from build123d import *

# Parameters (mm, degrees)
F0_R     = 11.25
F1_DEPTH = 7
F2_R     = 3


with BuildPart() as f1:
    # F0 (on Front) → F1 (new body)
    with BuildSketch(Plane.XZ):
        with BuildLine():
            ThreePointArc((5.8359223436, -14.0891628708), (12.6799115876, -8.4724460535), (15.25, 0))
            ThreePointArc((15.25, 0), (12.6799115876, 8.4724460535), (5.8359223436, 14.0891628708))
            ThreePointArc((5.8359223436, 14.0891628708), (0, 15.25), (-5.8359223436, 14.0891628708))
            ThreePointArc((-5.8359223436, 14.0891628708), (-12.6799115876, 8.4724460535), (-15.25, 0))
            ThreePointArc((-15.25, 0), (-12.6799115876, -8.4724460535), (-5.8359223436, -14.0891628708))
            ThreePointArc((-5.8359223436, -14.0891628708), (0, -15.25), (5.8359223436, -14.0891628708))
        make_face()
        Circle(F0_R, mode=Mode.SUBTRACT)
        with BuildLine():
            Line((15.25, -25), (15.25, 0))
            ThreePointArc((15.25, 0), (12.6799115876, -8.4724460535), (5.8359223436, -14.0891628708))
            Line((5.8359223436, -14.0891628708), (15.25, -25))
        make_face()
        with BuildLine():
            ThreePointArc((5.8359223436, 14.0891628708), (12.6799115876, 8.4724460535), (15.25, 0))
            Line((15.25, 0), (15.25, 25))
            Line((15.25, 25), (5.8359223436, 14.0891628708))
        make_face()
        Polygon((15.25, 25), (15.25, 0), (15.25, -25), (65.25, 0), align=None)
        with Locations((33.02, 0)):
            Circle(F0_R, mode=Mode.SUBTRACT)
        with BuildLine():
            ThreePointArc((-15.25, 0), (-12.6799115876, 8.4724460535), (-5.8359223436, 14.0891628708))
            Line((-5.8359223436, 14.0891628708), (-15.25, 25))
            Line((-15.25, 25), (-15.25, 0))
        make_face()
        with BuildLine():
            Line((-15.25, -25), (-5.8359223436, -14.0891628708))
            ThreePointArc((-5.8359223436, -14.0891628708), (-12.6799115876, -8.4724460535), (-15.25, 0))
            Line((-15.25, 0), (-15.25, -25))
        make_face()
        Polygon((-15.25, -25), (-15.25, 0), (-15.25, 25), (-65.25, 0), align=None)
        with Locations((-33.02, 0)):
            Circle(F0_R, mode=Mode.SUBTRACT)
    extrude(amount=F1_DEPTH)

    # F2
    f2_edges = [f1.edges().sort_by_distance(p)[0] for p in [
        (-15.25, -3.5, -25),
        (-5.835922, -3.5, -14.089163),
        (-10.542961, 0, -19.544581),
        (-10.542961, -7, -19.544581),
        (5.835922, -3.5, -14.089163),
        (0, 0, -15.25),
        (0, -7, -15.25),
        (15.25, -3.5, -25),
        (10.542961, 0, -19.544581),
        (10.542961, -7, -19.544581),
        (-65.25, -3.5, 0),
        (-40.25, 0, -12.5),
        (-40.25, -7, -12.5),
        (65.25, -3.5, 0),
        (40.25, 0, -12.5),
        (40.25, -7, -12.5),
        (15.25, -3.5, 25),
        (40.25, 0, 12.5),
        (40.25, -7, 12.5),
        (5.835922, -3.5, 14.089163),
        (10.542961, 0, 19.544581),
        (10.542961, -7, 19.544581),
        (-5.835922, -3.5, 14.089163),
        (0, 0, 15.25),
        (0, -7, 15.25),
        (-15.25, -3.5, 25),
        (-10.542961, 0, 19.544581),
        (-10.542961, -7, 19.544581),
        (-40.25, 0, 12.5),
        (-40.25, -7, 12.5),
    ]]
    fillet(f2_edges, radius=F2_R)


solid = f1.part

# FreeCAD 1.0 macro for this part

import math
import FreeCAD as App
import Part
import Sketcher


def edges_at(feature, points):
    """Names of the edges that pass closest to the given points."""
    edges = feature.Shape.Edges
    near = lambda p: min(range(len(edges)), key=lambda i: edges[i].distToShape(Part.Vertex(*p))[0])
    return sorted({f"Edge{near(p) + 1}" for p in points})

doc = App.newDocument("Part")
body = doc.addObject("PartDesign::Body", "Body")

sketch1 = body.newObject("Sketcher::SketchObject", "Sketch")
sketch1.AttachmentSupport = (doc.getObject("XZ_Plane"), [""])
sketch1.MapMode = "FlatFace"
sketch1.addGeometry([
    Part.ArcOfCircle(Part.Circle(App.Vector(0, 0, 0), App.Vector(0, 0, 1), 15.25), math.radians(-112.5), math.radians(-67.5)),
    Part.LineSegment(App.Vector(5.835922, -14.089163, 0), App.Vector(15.25, -25, 0)),
    Part.LineSegment(App.Vector(15.25, -25, 0), App.Vector(65.25, 0, 0)),
    Part.LineSegment(App.Vector(65.25, 0, 0), App.Vector(15.25, 25, 0)),
    Part.LineSegment(App.Vector(15.25, 25, 0), App.Vector(5.835922, 14.089163, 0)),
    Part.ArcOfCircle(Part.Circle(App.Vector(0, 0, 0), App.Vector(0, 0, 1), 15.25), math.radians(67.5), math.radians(112.5)),
    Part.LineSegment(App.Vector(-5.835922, 14.089163, 0), App.Vector(-15.25, 25, 0)),
    Part.LineSegment(App.Vector(-15.25, 25, 0), App.Vector(-65.25, 0, 0)),
    Part.LineSegment(App.Vector(-65.25, 0, 0), App.Vector(-15.25, -25, 0)),
    Part.LineSegment(App.Vector(-15.25, -25, 0), App.Vector(-5.835922, -14.089163, 0)),
    Part.Circle(App.Vector(-33.02, 0, 0), App.Vector(0, 0, 1), 11.25),
    Part.Circle(App.Vector(0, 0, 0), App.Vector(0, 0, 1), 11.25),
    Part.Circle(App.Vector(33.02, 0, 0), App.Vector(0, 0, 1), 11.25),
], False)
sketch1.addConstraint([
    Sketcher.Constraint("Coincident", 0, 2, 1, 1),
    Sketcher.Constraint("Coincident", 1, 2, 2, 1),
    Sketcher.Constraint("Coincident", 2, 2, 3, 1),
    Sketcher.Constraint("Coincident", 3, 2, 4, 1),
    Sketcher.Constraint("Coincident", 4, 2, 5, 1),
    Sketcher.Constraint("Coincident", 5, 2, 6, 1),
    Sketcher.Constraint("Coincident", 6, 2, 7, 1),
    Sketcher.Constraint("Coincident", 7, 2, 8, 1),
    Sketcher.Constraint("Coincident", 8, 2, 9, 1),
    Sketcher.Constraint("Coincident", 9, 2, 0, 1),
    Sketcher.Constraint("Coincident", 0, 3, -1, 1),
    Sketcher.Constraint("Coincident", 5, 3, -1, 1),
    Sketcher.Constraint("Coincident", 11, 3, -1, 1),
    Sketcher.Constraint("Equal", 0, 5),
    Sketcher.Constraint("Equal", 10, 11),
    Sketcher.Constraint("Equal", 11, 12),
    Sketcher.Constraint("Symmetric", 10, 3, 12, 3, -1, 1),
    Sketcher.Constraint("Symmetric", 1, 2, 6, 2, -1, 1),
    Sketcher.Constraint("Symmetric", 2, 2, 7, 2, -1, 1),
    Sketcher.Constraint("Symmetric", 3, 2, 8, 2, -1, 1),
    Sketcher.Constraint("Symmetric", 3, 2, 6, 2, -2),
    Sketcher.Constraint("PointOnObject", 10, 3, -1),
    Sketcher.Constraint("PointOnObject", 2, 2, -1),
    Sketcher.Constraint("Parallel", 1, 6),
    Sketcher.Constraint("Parallel", 4, 9),
    Sketcher.Constraint("Horizontal", 4, 2, 5, 2),
    Sketcher.Constraint("Diameter", 10, 22.5),
    Sketcher.Constraint("Radius", 0, 15.25),
    Sketcher.Constraint("DistanceY", 1, 2, -1, 1, 25.0),
    Sketcher.Constraint("DistanceX", 1, 2, 2, 2, 50.0),
    Sketcher.Constraint("DistanceX", 8, 2, 1, 2, 30.5),
    Sketcher.Constraint("DistanceX", 10, 3, -1, 1, 33.02),
    Sketcher.Constraint("Distance", 1, 14.410802),
])
pad1 = body.newObject("PartDesign::Pad", "Pad")
pad1.Profile = sketch1
pad1.Length = 7
doc.recompute()

fillet = body.newObject("PartDesign::Fillet", "Fillet")
fillet.Base = (pad1, edges_at(pad1, [
    (-15.25, -3.5, -25),
    (-5.836, -3.5, -14.089),
    (-10.543, 0, -19.545),
    (-10.543, -7, -19.545),
    (5.836, -3.5, -14.089),
    (0, 0, -15.25),
    (0, -7, -15.25),
    (15.25, -3.5, -25),
    (10.543, 0, -19.545),
    (10.543, -7, -19.545),
    (-65.25, -3.5, 0),
    (-40.25, 0, -12.5),
    (-40.25, -7, -12.5),
    (65.25, -3.5, 0),
    (40.25, 0, -12.5),
    (40.25, -7, -12.5),
    (15.25, -3.5, 25),
    (40.25, 0, 12.5),
    (40.25, -7, 12.5),
    (5.836, -3.5, 14.089),
    (10.543, 0, 19.545),
    (10.543, -7, 19.545),
    (-5.836, -3.5, 14.089),
    (0, 0, 15.25),
    (0, -7, 15.25),
    (-15.25, -3.5, 25),
    (-10.543, 0, 19.545),
    (-10.543, -7, 19.545),
    (-40.25, 0, 12.5),
    (-40.25, -7, 12.5),
]))
fillet.Radius = 3

doc.recompute()
